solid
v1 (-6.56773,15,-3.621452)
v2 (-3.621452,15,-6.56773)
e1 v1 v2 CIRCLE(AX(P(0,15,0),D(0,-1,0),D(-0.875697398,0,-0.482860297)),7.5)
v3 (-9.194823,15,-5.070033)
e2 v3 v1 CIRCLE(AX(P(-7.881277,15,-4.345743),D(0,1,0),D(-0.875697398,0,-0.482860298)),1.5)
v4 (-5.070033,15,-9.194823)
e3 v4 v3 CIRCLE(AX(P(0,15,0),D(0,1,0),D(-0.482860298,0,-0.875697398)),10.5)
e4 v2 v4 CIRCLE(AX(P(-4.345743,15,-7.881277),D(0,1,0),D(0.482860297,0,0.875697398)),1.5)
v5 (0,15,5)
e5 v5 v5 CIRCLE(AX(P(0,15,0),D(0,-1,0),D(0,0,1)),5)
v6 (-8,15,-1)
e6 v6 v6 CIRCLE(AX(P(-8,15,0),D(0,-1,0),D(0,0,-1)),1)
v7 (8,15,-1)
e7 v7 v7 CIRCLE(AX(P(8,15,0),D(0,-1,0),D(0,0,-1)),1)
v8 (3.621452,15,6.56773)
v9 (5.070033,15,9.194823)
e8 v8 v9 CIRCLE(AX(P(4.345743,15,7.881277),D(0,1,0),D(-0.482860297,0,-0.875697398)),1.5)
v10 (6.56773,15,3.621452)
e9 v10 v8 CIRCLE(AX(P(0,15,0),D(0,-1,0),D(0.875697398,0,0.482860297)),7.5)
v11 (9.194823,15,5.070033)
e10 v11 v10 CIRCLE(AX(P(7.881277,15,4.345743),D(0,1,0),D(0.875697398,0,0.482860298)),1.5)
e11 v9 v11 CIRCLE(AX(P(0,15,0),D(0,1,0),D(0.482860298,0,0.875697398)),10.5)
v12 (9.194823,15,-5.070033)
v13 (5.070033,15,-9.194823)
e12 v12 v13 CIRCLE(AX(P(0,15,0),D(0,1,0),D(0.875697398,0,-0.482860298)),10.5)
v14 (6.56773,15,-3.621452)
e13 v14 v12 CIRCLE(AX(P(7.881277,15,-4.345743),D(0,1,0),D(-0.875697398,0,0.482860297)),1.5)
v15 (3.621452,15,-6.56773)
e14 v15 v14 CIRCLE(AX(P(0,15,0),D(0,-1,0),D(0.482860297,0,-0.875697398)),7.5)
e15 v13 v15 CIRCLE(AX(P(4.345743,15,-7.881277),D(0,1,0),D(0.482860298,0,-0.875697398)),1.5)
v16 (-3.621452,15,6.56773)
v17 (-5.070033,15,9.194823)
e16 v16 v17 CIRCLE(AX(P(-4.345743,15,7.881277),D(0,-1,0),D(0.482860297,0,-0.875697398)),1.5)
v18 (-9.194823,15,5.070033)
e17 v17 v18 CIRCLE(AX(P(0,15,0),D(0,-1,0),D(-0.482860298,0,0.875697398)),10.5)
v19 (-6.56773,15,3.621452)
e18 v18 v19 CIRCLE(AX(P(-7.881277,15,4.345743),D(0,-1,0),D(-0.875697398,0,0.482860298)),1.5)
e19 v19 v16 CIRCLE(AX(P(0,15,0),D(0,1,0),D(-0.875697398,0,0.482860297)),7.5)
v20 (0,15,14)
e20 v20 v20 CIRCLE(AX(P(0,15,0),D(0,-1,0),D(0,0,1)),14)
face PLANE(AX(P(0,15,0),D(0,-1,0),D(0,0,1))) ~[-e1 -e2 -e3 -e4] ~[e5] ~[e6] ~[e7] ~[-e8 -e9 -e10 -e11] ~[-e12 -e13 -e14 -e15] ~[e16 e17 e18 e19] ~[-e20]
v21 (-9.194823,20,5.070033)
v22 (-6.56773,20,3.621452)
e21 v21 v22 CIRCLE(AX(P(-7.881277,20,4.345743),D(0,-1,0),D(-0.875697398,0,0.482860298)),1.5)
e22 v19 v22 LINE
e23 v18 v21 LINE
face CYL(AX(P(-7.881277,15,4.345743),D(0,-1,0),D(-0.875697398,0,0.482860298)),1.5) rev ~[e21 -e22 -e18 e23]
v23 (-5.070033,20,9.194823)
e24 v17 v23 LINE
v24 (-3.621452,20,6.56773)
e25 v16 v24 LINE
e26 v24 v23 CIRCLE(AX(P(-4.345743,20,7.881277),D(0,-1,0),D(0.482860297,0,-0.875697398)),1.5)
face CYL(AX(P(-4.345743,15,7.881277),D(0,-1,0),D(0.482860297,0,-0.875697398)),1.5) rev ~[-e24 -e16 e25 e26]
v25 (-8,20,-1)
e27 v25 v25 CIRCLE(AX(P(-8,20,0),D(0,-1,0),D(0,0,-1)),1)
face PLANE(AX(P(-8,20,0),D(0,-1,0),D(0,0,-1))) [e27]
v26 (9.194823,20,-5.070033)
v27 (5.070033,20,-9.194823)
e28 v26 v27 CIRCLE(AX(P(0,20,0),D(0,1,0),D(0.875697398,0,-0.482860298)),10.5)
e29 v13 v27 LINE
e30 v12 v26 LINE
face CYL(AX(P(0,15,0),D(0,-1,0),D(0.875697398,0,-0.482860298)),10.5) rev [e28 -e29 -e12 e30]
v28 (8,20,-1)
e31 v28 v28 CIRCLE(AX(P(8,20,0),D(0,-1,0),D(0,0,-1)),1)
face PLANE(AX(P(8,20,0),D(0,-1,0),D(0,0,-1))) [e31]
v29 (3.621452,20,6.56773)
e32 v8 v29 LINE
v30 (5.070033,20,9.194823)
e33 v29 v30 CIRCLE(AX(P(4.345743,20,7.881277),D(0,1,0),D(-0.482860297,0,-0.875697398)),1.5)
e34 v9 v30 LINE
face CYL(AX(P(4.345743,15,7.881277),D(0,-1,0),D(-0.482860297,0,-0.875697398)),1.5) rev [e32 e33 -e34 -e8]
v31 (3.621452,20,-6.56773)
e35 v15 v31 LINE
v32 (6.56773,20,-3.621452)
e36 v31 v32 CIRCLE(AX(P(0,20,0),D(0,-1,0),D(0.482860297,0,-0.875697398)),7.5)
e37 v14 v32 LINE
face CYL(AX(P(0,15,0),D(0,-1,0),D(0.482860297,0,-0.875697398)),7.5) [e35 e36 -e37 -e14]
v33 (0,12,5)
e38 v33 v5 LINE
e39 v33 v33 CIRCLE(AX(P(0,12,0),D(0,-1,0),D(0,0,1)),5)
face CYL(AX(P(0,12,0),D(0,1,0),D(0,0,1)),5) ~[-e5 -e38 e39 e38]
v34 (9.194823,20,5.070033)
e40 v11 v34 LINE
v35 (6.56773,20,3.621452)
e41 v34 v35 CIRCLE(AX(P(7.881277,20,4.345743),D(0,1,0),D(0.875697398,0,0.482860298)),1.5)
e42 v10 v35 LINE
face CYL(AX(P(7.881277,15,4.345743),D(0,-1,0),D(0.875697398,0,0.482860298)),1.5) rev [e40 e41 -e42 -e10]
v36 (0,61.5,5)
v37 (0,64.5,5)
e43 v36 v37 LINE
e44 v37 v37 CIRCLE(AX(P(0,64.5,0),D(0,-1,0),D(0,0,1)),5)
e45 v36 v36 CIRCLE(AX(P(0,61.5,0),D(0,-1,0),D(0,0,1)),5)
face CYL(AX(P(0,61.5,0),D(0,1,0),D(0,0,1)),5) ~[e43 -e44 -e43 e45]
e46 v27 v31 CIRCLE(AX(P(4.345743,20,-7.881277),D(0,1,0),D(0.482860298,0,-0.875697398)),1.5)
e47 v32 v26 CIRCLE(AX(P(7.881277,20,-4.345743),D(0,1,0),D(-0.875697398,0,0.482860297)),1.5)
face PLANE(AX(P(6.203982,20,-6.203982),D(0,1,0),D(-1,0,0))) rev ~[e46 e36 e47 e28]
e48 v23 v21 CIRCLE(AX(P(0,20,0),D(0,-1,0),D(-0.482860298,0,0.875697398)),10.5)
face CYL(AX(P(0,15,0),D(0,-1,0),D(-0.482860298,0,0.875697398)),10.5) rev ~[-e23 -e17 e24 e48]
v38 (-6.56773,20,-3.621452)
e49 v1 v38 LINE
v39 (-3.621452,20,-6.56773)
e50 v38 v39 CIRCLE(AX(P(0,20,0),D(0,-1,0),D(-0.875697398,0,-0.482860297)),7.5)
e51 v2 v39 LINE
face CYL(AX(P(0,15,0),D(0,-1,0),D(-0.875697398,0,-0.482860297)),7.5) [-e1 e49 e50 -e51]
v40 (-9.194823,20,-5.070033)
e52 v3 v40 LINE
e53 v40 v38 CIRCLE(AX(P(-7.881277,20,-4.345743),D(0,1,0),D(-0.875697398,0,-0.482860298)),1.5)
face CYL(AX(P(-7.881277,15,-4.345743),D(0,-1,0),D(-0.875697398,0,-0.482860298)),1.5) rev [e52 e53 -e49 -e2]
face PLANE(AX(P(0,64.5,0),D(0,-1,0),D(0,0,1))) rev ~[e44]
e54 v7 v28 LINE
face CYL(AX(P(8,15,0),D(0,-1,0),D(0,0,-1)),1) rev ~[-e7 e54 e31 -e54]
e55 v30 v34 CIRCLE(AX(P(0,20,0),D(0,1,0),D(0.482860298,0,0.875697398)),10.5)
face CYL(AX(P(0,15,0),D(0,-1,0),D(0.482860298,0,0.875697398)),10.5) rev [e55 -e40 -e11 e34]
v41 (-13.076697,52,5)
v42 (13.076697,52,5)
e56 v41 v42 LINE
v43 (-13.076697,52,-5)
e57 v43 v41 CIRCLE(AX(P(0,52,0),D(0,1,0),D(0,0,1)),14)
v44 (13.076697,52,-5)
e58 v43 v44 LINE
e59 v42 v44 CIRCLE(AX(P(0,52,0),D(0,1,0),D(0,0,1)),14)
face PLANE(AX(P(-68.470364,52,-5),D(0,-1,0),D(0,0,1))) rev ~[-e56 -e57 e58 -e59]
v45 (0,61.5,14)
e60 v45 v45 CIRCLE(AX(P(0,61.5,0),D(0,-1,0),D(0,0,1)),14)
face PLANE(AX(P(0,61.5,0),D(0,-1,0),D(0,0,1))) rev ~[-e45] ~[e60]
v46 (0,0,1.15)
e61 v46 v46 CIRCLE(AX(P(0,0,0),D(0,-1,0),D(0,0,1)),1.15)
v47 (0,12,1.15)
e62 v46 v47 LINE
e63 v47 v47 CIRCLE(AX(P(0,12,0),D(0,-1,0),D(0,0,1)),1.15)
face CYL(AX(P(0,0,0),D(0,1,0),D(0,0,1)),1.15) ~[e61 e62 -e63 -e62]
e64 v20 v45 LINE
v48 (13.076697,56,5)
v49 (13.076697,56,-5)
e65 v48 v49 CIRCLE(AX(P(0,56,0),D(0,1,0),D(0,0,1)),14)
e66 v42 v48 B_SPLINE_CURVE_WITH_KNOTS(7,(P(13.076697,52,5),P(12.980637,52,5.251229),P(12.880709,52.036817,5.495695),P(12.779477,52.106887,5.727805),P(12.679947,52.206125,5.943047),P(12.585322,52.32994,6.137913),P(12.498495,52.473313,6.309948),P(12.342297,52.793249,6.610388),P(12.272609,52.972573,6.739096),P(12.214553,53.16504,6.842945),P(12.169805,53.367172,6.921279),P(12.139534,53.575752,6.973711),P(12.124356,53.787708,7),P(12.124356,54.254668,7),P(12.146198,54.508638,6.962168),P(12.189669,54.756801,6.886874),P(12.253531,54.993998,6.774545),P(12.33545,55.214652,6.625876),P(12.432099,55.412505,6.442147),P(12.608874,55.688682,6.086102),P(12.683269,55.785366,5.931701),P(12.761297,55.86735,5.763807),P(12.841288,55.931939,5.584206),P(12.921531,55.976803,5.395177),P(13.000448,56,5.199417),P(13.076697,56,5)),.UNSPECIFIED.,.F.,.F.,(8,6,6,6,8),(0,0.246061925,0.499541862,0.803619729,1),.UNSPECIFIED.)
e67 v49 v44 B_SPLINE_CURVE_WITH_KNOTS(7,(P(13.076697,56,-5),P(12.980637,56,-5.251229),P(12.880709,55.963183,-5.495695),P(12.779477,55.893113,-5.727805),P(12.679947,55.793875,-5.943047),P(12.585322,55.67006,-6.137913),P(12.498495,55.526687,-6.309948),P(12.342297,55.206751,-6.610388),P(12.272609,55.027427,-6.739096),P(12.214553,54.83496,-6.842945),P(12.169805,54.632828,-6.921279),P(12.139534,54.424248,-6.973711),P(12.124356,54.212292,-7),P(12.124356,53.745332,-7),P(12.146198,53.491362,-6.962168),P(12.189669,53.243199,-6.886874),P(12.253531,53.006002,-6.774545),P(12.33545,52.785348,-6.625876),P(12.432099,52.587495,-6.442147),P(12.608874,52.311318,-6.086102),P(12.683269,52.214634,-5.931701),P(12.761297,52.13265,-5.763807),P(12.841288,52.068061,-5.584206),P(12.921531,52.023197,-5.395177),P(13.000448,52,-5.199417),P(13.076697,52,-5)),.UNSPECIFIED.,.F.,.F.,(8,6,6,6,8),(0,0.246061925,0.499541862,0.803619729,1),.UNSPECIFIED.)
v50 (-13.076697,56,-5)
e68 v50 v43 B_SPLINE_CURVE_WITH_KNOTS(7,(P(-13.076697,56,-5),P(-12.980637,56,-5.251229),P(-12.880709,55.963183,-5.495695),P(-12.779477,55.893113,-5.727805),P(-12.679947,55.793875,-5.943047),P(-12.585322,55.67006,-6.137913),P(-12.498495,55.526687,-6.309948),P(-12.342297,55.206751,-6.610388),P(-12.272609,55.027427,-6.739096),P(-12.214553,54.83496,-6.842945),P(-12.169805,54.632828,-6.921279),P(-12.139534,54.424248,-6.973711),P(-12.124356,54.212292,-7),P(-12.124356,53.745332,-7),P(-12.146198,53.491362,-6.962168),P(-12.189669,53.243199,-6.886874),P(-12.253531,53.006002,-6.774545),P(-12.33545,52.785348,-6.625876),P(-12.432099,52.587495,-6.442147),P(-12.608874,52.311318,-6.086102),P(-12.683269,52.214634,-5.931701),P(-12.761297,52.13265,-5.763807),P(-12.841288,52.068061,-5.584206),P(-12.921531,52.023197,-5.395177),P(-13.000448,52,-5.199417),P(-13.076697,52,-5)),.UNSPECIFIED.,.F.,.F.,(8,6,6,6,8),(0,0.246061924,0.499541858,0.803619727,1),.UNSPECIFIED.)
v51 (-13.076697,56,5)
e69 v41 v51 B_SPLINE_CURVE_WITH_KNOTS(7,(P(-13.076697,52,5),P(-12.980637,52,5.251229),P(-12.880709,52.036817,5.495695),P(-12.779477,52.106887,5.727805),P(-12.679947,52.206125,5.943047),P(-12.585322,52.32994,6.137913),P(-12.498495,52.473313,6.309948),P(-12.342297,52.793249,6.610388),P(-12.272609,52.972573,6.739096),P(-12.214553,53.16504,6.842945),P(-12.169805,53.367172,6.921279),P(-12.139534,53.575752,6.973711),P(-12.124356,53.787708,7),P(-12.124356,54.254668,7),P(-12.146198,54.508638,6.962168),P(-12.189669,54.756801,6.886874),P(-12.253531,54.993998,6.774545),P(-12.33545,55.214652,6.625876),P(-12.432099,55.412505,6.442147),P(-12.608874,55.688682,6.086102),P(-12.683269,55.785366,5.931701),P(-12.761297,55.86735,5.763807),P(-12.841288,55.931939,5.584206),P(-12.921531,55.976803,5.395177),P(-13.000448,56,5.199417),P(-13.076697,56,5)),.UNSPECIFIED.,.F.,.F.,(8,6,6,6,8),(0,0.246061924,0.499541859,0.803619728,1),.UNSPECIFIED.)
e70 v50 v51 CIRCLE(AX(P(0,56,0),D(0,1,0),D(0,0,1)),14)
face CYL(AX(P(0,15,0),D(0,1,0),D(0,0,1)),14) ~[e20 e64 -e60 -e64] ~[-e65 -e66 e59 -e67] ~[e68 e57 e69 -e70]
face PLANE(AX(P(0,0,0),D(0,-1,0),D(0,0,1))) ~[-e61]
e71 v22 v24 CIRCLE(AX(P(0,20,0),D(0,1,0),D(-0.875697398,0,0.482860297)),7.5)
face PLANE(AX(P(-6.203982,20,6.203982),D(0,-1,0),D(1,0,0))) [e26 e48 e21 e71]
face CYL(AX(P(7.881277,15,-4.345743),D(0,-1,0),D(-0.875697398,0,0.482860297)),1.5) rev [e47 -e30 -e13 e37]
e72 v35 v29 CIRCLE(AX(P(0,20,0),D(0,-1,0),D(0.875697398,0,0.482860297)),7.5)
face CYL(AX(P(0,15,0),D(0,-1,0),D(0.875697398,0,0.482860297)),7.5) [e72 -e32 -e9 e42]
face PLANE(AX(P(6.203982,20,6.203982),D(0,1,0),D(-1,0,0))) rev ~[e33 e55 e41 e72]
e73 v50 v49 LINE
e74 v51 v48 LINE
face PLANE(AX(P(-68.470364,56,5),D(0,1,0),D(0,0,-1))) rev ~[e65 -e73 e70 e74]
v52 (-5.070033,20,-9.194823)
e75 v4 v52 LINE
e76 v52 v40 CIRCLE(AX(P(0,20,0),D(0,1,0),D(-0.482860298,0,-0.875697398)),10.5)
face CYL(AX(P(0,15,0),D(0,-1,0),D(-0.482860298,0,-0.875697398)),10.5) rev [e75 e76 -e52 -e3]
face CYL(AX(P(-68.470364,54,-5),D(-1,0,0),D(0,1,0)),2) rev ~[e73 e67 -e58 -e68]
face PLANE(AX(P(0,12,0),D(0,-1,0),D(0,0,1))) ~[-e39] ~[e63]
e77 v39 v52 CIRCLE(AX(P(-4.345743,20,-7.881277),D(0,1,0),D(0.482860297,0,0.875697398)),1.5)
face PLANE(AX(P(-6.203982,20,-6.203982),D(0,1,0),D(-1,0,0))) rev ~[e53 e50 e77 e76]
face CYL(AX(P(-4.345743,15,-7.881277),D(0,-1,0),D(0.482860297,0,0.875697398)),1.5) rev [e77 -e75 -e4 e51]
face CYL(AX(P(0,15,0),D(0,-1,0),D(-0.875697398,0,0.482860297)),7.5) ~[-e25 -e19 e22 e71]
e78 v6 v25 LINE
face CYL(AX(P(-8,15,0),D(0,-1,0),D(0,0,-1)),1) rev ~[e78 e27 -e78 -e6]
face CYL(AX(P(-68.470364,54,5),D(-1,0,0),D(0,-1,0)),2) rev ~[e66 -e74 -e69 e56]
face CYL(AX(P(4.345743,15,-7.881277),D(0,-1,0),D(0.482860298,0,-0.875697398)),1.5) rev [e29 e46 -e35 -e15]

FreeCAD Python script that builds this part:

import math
import FreeCAD as App
import Part
import Sketcher


def add_polygon(sketch, points):
    """Adds a closed chain of lines whose ends are joined by coincident constraints."""
    first, n = sketch.GeometryCount, len(points)
    for a, b in zip(points, points[1:] + points[:1]):
        sketch.addGeometry(Part.LineSegment(App.Vector(*a, 0), App.Vector(*b, 0)), False)
    for i in range(n):
        sketch.addConstraint(Sketcher.Constraint("Coincident", first + i, 2, first + (i + 1) % n, 1))

doc = App.newDocument("Part")
body = doc.addObject("PartDesign::Body", "Body")

# Sketch on YZ plane
sketch1 = body.newObject("Sketcher::SketchObject", "Sketch")
sketch1.AttachmentSupport = (doc.getObject("YZ_Plane"), [""])
sketch1.MapMode = "FlatFace"
add_polygon(sketch1, [(0, 0), (0, -1.1), (12, -1.1), (12, -5), (15, -5), (15, -14), (61.5, -14), (61.5, -5), (64.5, -5), (64.5, 0)])  # lines 0-9
sketch1.addConstraint([
    Sketcher.Constraint("Vertical", 0),
    Sketcher.Constraint("Horizontal", 1),
    Sketcher.Constraint("Vertical", 2),
    Sketcher.Constraint("Horizontal", 3),
    Sketcher.Constraint("Vertical", 4),
    Sketcher.Constraint("Horizontal", 5),
    Sketcher.Constraint("Vertical", 6),
    Sketcher.Constraint("Horizontal", 7),
    Sketcher.Constraint("Vertical", 8),
    Sketcher.Constraint("Horizontal", 9),
    Sketcher.Constraint("Coincident", 9, 2, -1, 1),
    Sketcher.Constraint("Horizontal", 3, 2, 6, 2),
    Sketcher.Constraint("Equal", 3, 7),
    Sketcher.Constraint("DistanceX", 1, 1, 1, 2, 12.0),
    Sketcher.Constraint("DistanceX", 3, 1, 3, 2, 3.0),
    Sketcher.Constraint("DistanceY", 4, 2, 4, 1, 9.0),
    Sketcher.Constraint("DistanceY", 8, 1, 8, 2, 5.0),
    Sketcher.Constraint("DistanceX", 5, 1, 5, 2, 46.5),
    Sketcher.Constraint("DistanceY", 0, 2, 0, 1, 1.15),
])
revolution = body.newObject("PartDesign::Revolution", "Revolution")
revolution.Profile = sketch1
revolution.ReferenceAxis = (sketch1, ["H_Axis"])
revolution.Angle = 360

# Sketch on XZ plane
sketch2 = body.newObject("Sketcher::SketchObject", "Sketch001")
sketch2.AttachmentSupport = (doc.getObject("XZ_Plane"), [""])
sketch2.MapMode = "FlatFace"
sketch2.AttachmentOffset = App.Placement(App.Vector(0, 0, -15), App.Rotation())
sketch2.addGeometry([
    Part.Circle(App.Vector(-8, 0, 0), App.Vector(0, 0, 1), 1),
    Part.Circle(App.Vector(8, 0, 0), App.Vector(0, 0, 1), 1),
], False)
sketch2.addConstraint([
    Sketcher.Constraint("Equal", 0, 1),
    Sketcher.Constraint("Symmetric", 0, 3, 1, 3, -1, 1),
    Sketcher.Constraint("PointOnObject", 0, 3, -1),
    Sketcher.Constraint("Diameter", 0, 2.0),
    Sketcher.Constraint("DistanceX", 0, 3, -1, 1, 8.0),
])
pocket1 = body.newObject("PartDesign::Pocket", "Pocket")
pocket1.Profile = sketch2
pocket1.Length = 5

# Sketch on XZ plane
sketch3 = body.newObject("Sketcher::SketchObject", "Sketch002")
sketch3.AttachmentSupport = (doc.getObject("XZ_Plane"), [""])
sketch3.MapMode = "FlatFace"
sketch3.AttachmentOffset = App.Placement(App.Vector(0, 0, -15), App.Rotation())
sketch3.addGeometry([
    Part.ArcOfCircle(Part.Circle(App.Vector(0, 0, 0), App.Vector(0, 0, 1), 10.5), math.radians(119), math.radians(151)),  # 0
    Part.ArcOfCircle(Part.Circle(App.Vector(-7.9, 4.3, 0), App.Vector(0, 0, 1), 1.5), math.radians(151), math.radians(331)),  # 1
    Part.ArcOfCircle(Part.Circle(App.Vector(0, 0, 0), App.Vector(0, 0, 1), 7.5), math.radians(119), math.radians(151)),  # 2
    Part.ArcOfCircle(Part.Circle(App.Vector(-4.3, 7.9, 0), App.Vector(0, 0, 1), 1.5), math.radians(-61), math.radians(119)),  # 3
    Part.ArcOfCircle(Part.Circle(App.Vector(0, 0, 0), App.Vector(0, 0, 1), 7.5), math.radians(29), math.radians(61)),  # 4
    Part.ArcOfCircle(Part.Circle(App.Vector(7.9, 4.3, 0), App.Vector(0, 0, 1), 1.5), math.radians(-151), math.radians(29)),  # 5
    Part.ArcOfCircle(Part.Circle(App.Vector(0, 0, 0), App.Vector(0, 0, 1), 10.5), math.radians(29), math.radians(61)),  # 6
    Part.ArcOfCircle(Part.Circle(App.Vector(4.3, 7.9, 0), App.Vector(0, 0, 1), 1.5), math.radians(61), math.radians(241)),  # 7
    Part.ArcOfCircle(Part.Circle(App.Vector(0, 0, 0), App.Vector(0, 0, 1), 7.5), math.radians(-61), math.radians(-29)),  # 8
    Part.ArcOfCircle(Part.Circle(App.Vector(4.3, -7.9, 0), App.Vector(0, 0, 1), 1.5), math.radians(119), math.radians(299)),  # 9
    Part.ArcOfCircle(Part.Circle(App.Vector(0, 0, 0), App.Vector(0, 0, 1), 10.5), math.radians(-61), math.radians(-29)),  # 10
    Part.ArcOfCircle(Part.Circle(App.Vector(7.9, -4.3, 0), App.Vector(0, 0, 1), 1.5), math.radians(-29), math.radians(151)),  # 11
    Part.ArcOfCircle(Part.Circle(App.Vector(0, 0, 0), App.Vector(0, 0, 1), 7.5), math.radians(-151), math.radians(-119)),  # 12
    Part.ArcOfCircle(Part.Circle(App.Vector(-7.9, -4.3, 0), App.Vector(0, 0, 1), 1.5), math.radians(29), math.radians(209)),  # 13
    Part.ArcOfCircle(Part.Circle(App.Vector(0, 0, 0), App.Vector(0, 0, 1), 10.5), math.radians(-151), math.radians(-119)),  # 14
    Part.ArcOfCircle(Part.Circle(App.Vector(-4.3, -7.9, 0), App.Vector(0, 0, 1), 1.5), math.radians(-119), math.radians(61)),  # 15
], False)
sketch3.addConstraint([
    Sketcher.Constraint("Tangent", 0, 2, 1, 1),
    Sketcher.Constraint("Tangent", 1, 2, 2, 2),
    Sketcher.Constraint("Tangent", 2, 1, 3, 1),
    Sketcher.Constraint("Tangent", 3, 2, 0, 1),
    Sketcher.Constraint("Tangent", 4, 1, 5, 1),
    Sketcher.Constraint("Tangent", 5, 2, 6, 1),
    Sketcher.Constraint("Tangent", 6, 2, 7, 1),
    Sketcher.Constraint("Tangent", 7, 2, 4, 2),
    Sketcher.Constraint("Tangent", 8, 1, 9, 1),
    Sketcher.Constraint("Tangent", 9, 2, 10, 1),
    Sketcher.Constraint("Tangent", 10, 2, 11, 1),
    Sketcher.Constraint("Tangent", 11, 2, 8, 2),
    Sketcher.Constraint("Tangent", 12, 1, 13, 1),
    Sketcher.Constraint("Tangent", 13, 2, 14, 1),
    Sketcher.Constraint("Tangent", 14, 2, 15, 1),
    Sketcher.Constraint("Tangent", 15, 2, 12, 2),
    Sketcher.Constraint("Coincident", 0, 3, -1, 1),
    Sketcher.Constraint("Coincident", 2, 3, -1, 1),
    Sketcher.Constraint("Coincident", 4, 3, -1, 1),
    Sketcher.Constraint("Coincident", 6, 3, -1, 1),
    Sketcher.Constraint("Coincident", 8, 3, -1, 1),
    Sketcher.Constraint("Coincident", 10, 3, -1, 1),
    Sketcher.Constraint("Coincident", 12, 3, -1, 1),
    Sketcher.Constraint("Coincident", 14, 3, -1, 1),
    Sketcher.Constraint("Equal", 2, 4),
    Sketcher.Constraint("Equal", 3, 5),
    Sketcher.Constraint("Equal", 4, 8),
    Sketcher.Constraint("Equal", 7, 9),
    Sketcher.Constraint("Equal", 8, 12),
    Sketcher.Constraint("Equal", 11, 13),
    Sketcher.Constraint("Horizontal", 1, 3, 5, 3),
    Sketcher.Constraint("Horizontal", 3, 3, 7, 3),
    Sketcher.Constraint("Horizontal", 11, 3, 13, 3),
    Sketcher.Constraint("Horizontal", 9, 3, 15, 3),
    Sketcher.Constraint("Vertical", 7, 3, 9, 3),
    Sketcher.Constraint("Vertical", 5, 3, 11, 3),
    Sketcher.Constraint("Radius", 0, 10.5),
    Sketcher.Constraint("Radius", 1, 1.5),
    Sketcher.Constraint("DistanceX", 1, 2, -1, 1, 6.56773),
    Sketcher.Constraint("DistanceY", -1, 1, 2, 1, 6.56773),
])
pocket2 = body.newObject("PartDesign::Pocket", "Pocket001")
pocket2.Profile = sketch3
pocket2.Length = 5

# Sketch on YZ plane
sketch4 = body.newObject("Sketcher::SketchObject", "Sketch003")
sketch4.AttachmentSupport = (doc.getObject("YZ_Plane"), [""])
sketch4.MapMode = "FlatFace"
sketch4.addGeometry([
    Part.LineSegment(App.Vector(56, -5, 0), App.Vector(56, 5, 0)),
    Part.ArcOfCircle(Part.Circle(App.Vector(54, 5, 0), App.Vector(0, 0, 1), 2), math.radians(0), math.radians(180)),
    Part.LineSegment(App.Vector(52, 5, 0), App.Vector(52, -5, 0)),
    Part.ArcOfCircle(Part.Circle(App.Vector(54, -5, 0), App.Vector(0, 0, 1), 2), math.radians(180), math.radians(360)),
], False)
sketch4.addConstraint([
    Sketcher.Constraint("Tangent", 0, 2, 1, 1),
    Sketcher.Constraint("Tangent", 1, 2, 2, 1),
    Sketcher.Constraint("Tangent", 2, 2, 3, 1),
    Sketcher.Constraint("Tangent", 3, 2, 0, 1),
    Sketcher.Constraint("Vertical", 0),
    Sketcher.Constraint("Vertical", 2),
    Sketcher.Constraint("Radius", 1, 2.0),
    Sketcher.Constraint("DistanceY", 0, 1, 0, 2, 10.0),
    Sketcher.Constraint("DistanceX", -1, 1, 1, 3, 54.0),
    Sketcher.Constraint("DistanceY", -1, 1, 1, 3, 5.0),
])
pocket3 = body.newObject("PartDesign::Pocket", "Pocket002")
pocket3.Profile = sketch4
pocket3.Type = "ThroughAll"
pocket3.Midplane = True

doc.recompute()
